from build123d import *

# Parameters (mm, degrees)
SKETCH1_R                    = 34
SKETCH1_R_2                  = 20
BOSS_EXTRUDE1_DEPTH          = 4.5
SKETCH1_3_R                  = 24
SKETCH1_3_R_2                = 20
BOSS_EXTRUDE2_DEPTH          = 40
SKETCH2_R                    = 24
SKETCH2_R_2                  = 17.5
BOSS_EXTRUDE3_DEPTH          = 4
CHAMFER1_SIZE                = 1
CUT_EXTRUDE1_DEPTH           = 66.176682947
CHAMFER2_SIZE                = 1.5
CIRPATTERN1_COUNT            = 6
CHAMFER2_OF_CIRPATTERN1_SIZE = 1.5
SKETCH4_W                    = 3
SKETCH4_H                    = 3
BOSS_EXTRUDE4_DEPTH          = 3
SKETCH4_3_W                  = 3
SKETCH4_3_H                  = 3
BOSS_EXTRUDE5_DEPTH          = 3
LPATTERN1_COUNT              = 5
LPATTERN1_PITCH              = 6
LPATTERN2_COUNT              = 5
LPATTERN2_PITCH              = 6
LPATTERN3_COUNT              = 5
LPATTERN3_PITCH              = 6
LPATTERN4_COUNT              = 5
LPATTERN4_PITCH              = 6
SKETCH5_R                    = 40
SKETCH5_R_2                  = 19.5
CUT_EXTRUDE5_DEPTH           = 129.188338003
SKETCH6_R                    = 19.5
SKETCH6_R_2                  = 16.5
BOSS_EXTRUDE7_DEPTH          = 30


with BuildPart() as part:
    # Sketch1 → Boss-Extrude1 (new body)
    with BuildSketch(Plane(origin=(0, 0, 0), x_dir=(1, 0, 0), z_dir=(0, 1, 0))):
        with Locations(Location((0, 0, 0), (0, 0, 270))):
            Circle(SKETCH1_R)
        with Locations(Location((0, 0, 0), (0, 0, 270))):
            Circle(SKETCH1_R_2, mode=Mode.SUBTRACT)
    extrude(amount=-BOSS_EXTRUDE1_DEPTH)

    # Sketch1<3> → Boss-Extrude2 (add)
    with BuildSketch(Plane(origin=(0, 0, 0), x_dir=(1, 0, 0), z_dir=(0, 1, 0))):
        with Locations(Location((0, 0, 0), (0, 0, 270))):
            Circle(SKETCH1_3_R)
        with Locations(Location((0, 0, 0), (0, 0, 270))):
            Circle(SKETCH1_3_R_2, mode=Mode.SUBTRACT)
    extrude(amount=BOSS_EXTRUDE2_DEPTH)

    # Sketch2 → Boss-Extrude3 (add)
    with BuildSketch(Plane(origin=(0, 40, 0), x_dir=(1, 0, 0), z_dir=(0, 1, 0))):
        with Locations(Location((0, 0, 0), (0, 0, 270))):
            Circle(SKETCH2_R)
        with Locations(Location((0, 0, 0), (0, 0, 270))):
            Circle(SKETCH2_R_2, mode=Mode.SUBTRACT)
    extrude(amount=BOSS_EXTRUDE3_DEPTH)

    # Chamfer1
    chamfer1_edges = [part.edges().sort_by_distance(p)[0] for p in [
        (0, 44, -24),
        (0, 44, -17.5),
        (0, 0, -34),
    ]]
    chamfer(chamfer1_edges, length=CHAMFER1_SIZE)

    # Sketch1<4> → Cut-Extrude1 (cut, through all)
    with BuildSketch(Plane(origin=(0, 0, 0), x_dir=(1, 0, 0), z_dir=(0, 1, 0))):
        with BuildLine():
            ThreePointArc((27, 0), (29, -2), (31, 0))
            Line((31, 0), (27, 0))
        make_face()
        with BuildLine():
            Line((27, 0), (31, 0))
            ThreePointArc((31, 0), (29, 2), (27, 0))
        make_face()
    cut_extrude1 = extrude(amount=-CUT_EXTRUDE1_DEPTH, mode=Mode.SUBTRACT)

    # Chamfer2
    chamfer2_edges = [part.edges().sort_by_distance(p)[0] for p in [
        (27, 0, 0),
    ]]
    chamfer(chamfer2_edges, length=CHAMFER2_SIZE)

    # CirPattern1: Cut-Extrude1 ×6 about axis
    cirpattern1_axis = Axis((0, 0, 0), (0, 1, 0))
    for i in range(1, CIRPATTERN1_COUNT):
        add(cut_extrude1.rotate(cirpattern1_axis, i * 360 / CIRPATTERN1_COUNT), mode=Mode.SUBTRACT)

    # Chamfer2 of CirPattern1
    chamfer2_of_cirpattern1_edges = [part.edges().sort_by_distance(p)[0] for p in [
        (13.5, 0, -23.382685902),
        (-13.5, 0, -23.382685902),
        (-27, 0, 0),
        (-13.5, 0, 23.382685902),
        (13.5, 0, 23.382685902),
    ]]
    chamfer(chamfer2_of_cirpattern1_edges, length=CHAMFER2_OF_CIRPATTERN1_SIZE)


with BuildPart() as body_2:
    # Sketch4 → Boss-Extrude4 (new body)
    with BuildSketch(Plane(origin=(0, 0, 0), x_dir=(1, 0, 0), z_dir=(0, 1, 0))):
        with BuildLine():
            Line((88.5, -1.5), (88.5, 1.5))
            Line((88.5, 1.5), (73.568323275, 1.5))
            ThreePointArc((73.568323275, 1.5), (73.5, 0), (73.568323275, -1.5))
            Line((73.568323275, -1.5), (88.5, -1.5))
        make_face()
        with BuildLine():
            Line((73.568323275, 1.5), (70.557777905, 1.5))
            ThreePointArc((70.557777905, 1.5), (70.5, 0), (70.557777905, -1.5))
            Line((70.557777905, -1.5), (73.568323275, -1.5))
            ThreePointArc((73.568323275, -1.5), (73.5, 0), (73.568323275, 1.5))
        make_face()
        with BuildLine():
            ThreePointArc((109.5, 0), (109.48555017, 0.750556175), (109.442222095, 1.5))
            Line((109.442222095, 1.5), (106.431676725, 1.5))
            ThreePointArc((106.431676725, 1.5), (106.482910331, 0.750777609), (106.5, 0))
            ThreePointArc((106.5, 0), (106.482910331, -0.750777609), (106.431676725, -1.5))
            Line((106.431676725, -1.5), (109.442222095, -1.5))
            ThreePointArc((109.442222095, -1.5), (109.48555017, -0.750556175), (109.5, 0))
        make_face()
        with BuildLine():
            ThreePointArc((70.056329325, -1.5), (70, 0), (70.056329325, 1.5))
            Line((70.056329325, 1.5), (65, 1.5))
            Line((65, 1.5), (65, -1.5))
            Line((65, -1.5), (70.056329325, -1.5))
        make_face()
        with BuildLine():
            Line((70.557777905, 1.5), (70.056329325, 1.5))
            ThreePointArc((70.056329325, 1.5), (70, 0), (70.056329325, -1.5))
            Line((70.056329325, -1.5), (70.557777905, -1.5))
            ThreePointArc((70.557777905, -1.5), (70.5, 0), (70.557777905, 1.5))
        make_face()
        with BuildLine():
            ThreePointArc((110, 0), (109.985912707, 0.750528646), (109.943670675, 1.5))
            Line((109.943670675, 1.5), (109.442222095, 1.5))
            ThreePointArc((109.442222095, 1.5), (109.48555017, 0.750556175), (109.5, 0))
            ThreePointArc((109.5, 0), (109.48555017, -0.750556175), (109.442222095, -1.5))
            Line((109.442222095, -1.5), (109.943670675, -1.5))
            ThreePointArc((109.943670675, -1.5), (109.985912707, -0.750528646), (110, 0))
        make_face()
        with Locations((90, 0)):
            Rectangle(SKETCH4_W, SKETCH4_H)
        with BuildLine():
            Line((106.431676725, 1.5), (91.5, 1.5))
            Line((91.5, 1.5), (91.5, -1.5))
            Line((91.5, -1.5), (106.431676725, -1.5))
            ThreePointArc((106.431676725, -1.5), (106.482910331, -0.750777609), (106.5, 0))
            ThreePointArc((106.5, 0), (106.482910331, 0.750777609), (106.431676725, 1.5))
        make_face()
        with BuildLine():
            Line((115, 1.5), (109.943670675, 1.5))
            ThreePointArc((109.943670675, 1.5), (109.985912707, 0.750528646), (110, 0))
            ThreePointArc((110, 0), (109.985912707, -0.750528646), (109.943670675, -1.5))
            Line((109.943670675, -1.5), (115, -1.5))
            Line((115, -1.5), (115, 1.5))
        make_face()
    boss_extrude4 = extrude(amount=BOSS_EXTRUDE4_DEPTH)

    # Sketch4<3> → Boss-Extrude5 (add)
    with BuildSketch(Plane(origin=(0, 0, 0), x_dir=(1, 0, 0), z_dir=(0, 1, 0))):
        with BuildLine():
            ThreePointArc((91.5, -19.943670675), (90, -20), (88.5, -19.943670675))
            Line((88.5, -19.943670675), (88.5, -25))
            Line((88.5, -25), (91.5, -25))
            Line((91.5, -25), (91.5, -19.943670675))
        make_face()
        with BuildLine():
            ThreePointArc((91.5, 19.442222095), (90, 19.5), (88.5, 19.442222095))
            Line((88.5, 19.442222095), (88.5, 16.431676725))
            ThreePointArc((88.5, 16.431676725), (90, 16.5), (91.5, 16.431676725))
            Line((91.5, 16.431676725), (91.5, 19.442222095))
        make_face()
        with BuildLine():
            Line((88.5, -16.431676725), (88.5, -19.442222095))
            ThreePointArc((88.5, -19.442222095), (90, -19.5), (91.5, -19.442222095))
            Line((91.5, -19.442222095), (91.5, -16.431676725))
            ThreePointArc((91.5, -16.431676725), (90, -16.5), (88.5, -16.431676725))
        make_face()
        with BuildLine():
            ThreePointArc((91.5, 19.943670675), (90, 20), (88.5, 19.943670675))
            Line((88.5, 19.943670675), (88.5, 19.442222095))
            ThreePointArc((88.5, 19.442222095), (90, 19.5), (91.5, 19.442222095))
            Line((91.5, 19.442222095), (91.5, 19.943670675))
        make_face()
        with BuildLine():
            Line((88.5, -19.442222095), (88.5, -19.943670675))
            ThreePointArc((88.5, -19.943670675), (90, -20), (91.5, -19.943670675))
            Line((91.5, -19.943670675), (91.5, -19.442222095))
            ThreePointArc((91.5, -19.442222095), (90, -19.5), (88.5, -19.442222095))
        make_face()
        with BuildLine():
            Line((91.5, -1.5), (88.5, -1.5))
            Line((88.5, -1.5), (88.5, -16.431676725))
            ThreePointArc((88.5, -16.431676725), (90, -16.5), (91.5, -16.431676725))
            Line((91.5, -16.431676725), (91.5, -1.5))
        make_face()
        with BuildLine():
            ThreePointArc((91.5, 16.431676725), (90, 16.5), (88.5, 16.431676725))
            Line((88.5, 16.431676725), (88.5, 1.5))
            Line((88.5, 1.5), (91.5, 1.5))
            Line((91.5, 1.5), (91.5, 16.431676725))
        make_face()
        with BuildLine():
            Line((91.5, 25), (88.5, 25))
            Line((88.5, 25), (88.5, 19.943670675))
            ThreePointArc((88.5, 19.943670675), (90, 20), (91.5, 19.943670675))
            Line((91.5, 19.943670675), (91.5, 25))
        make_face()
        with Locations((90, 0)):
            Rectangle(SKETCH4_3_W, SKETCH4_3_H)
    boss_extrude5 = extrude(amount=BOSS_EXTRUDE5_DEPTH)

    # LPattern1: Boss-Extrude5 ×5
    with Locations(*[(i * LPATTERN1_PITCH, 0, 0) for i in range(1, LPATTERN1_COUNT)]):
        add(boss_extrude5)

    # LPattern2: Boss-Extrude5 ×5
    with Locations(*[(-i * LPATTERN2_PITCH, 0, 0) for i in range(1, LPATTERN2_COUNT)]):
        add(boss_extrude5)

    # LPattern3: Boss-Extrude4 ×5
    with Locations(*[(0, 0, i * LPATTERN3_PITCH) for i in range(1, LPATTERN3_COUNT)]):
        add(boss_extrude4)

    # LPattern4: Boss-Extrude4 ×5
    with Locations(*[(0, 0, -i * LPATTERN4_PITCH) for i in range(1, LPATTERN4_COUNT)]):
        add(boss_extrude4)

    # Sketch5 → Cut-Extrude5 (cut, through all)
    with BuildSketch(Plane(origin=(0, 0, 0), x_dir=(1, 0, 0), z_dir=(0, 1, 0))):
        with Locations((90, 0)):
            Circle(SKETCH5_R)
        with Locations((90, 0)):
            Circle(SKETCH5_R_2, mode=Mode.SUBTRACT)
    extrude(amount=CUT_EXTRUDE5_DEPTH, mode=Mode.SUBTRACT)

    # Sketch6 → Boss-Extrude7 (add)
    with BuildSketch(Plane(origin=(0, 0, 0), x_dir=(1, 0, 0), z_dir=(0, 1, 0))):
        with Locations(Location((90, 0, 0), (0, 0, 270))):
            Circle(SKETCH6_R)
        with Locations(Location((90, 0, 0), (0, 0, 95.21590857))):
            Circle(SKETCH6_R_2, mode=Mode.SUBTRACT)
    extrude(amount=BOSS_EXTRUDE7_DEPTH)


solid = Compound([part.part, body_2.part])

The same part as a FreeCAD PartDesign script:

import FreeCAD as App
import Part
import Sketcher
from FreeCAD import Vector


def edges_at(feature, points):
    """Names of the edges that pass closest to the given points."""
    edges = feature.Shape.Edges
    near = lambda p: min(range(len(edges)), key=lambda i: edges[i].distToShape(Part.Vertex(*p))[0])
    return sorted({f"Edge{near(p) + 1}" for p in points})

doc = App.newDocument("Part")
body = doc.addObject("PartDesign::Body", "Body")

# Sketch on XZ plane
sketch1 = body.newObject("Sketcher::SketchObject", "Sketch")
sketch1.AttachmentSupport = (doc.getObject("XZ_Plane"), [""])
sketch1.MapMode = "FlatFace"
sketch1.addGeometry(Part.Circle(Vector(0, 0, 0), Vector(0, 0, 1), 34), False)
sketch1.addGeometry(Part.Circle(Vector(0, 0, 0), Vector(0, 0, 1), 20), False)
sketch1.addConstraint(Sketcher.Constraint("Coincident", 0, 3, -1, 1))
sketch1.addConstraint(Sketcher.Constraint("Coincident", 1, 3, -1, 1))
sketch1.addConstraint(Sketcher.Constraint("Diameter", 0, 68.0))
sketch1.addConstraint(Sketcher.Constraint("Diameter", 1, 40.0))
pad1 = body.newObject("PartDesign::Pad", "Pad")
pad1.Profile = sketch1
pad1.Length = 4.5

# Sketch on XZ plane
sketch2 = body.newObject("Sketcher::SketchObject", "Sketch001")
sketch2.AttachmentSupport = (doc.getObject("XZ_Plane"), [""])
sketch2.MapMode = "FlatFace"
sketch2.addGeometry(Part.Circle(Vector(0, 0, 0), Vector(0, 0, 1), 24), False)
sketch2.addGeometry(Part.Circle(Vector(0, 0, 0), Vector(0, 0, 1), 20), False)
sketch2.addConstraint(Sketcher.Constraint("Coincident", 0, 3, -1, 1))
sketch2.addConstraint(Sketcher.Constraint("Coincident", 1, 3, -1, 1))
sketch2.addConstraint(Sketcher.Constraint("Diameter", 0, 48.0))
sketch2.addConstraint(Sketcher.Constraint("Diameter", 1, 40.0))
pad2 = body.newObject("PartDesign::Pad", "Pad001")
pad2.Profile = sketch2
pad2.Length = 40
pad2.Reversed = True

# Sketch on XZ plane
sketch3 = body.newObject("Sketcher::SketchObject", "Sketch002")
sketch3.AttachmentSupport = (doc.getObject("XZ_Plane"), [""])
sketch3.MapMode = "FlatFace"
sketch3.AttachmentOffset = App.Placement(Vector(0, 0, -40), App.Rotation())
sketch3.addGeometry(Part.Circle(Vector(0, 0, 0), Vector(0, 0, 1), 24), False)
sketch3.addGeometry(Part.Circle(Vector(0, 0, 0), Vector(0, 0, 1), 18), False)
sketch3.addConstraint(Sketcher.Constraint("Coincident", 0, 3, -1, 1))
sketch3.addConstraint(Sketcher.Constraint("Coincident", 1, 3, -1, 1))
sketch3.addConstraint(Sketcher.Constraint("Diameter", 0, 48.0))
sketch3.addConstraint(Sketcher.Constraint("Diameter", 1, 35.0))
pad3 = body.newObject("PartDesign::Pad", "Pad002")
pad3.Profile = sketch3
pad3.Length = 4
pad3.Reversed = True
doc.recompute()

chamfer = body.newObject("PartDesign::Chamfer", "Chamfer")
chamfer.Base = (pad3, edges_at(pad3, [(0, 44, -24), (0, 44, -17.5), (0, 0, -34)]))
chamfer.Size = 1

# Sketch on XZ plane
sketch4 = body.newObject("Sketcher::SketchObject", "Sketch003")
sketch4.AttachmentSupport = (doc.getObject("XZ_Plane"), [""])
sketch4.MapMode = "FlatFace"
sketch4.addGeometry(Part.Circle(Vector(29, 0, 0), Vector(0, 0, 1), 2), False)
sketch4.addConstraint(Sketcher.Constraint("PointOnObject", 0, 3, -1))
sketch4.addConstraint(Sketcher.Constraint("Diameter", 0, 4.0))
sketch4.addConstraint(Sketcher.Constraint("DistanceX", -1, 1, 0, 3, 29.0))
pocket1 = body.newObject("PartDesign::Pocket", "Pocket")
pocket1.Profile = sketch4
pocket1.Type = "ThroughAll"
pocket1.Reversed = True
doc.recompute()

chamfer2 = body.newObject("PartDesign::Chamfer", "Chamfer001")
chamfer2.Base = (pocket1, edges_at(pocket1, [(27, 0, 0)]))
chamfer2.Size = 1.5
doc.recompute()

polarpattern = body.newObject("PartDesign::PolarPattern", "PolarPattern")
polarpattern.Originals = [pocket1]
polarpattern.Axis = (doc.getObject("Y_Axis"), [""])
polarpattern.Angle = 360
polarpattern.Occurrences = 6
body.Tip = polarpattern
doc.recompute()

chamfer3 = body.newObject("PartDesign::Chamfer", "Chamfer002")
chamfer3.Base = (polarpattern, edges_at(polarpattern, [
    (13.5, 0, -23.383),
    (-13.5, 0, -23.383),
    (-27, 0, 0),
    (-13.5, 0, 23.383),
    (13.5, 0, 23.383),
]))
chamfer3.Size = 1.5
body2 = doc.addObject("PartDesign::Body", "Body001")

# Sketch on XZ plane
sketch5 = body2.newObject("Sketcher::SketchObject", "Sketch004")
sketch5.AttachmentSupport = (doc.getObject("XZ_Plane001"), [""])
sketch5.MapMode = "FlatFace"
sketch5.addGeometry(Part.LineSegment(Vector(65, -1.5, 0), Vector(65, 1.5, 0)), False)
sketch5.addGeometry(Part.LineSegment(Vector(65, 1.5, 0), Vector(115, 1.5, 0)), False)
sketch5.addGeometry(Part.LineSegment(Vector(115, 1.5, 0), Vector(115, -1.5, 0)), False)
sketch5.addGeometry(Part.LineSegment(Vector(115, -1.5, 0), Vector(65, -1.5, 0)), False)
sketch5.addConstraint(Sketcher.Constraint("Coincident", 0, 2, 1, 1))
sketch5.addConstraint(Sketcher.Constraint("Coincident", 1, 2, 2, 1))
sketch5.addConstraint(Sketcher.Constraint("Coincident", 2, 2, 3, 1))
sketch5.addConstraint(Sketcher.Constraint("Coincident", 3, 2, 0, 1))
sketch5.addConstraint(Sketcher.Constraint("Vertical", 0))
sketch5.addConstraint(Sketcher.Constraint("Horizontal", 1))
sketch5.addConstraint(Sketcher.Constraint("Vertical", 2))
sketch5.addConstraint(Sketcher.Constraint("Horizontal", 3))
sketch5.addConstraint(Sketcher.Constraint("DistanceX", 1, 1, 1, 2, 50.0))
sketch5.addConstraint(Sketcher.Constraint("DistanceY", 0, 1, 0, 2, 3.0))
sketch5.addConstraint(Sketcher.Constraint("DistanceX", -1, 1, 0, 2, 65.0))
sketch5.addConstraint(Sketcher.Constraint("DistanceY", -1, 1, 0, 2, 1.5))
pad4 = body2.newObject("PartDesign::Pad", "Pad003")
pad4.Profile = sketch5
pad4.Length = 3
pad4.Reversed = True

# Sketch on XZ plane
sketch6 = body2.newObject("Sketcher::SketchObject", "Sketch005")
sketch6.AttachmentSupport = (doc.getObject("XZ_Plane001"), [""])
sketch6.MapMode = "FlatFace"
sketch6.addGeometry(Part.LineSegment(Vector(88.5, 25, 0), Vector(91.5, 25, 0)), False)
sketch6.addGeometry(Part.LineSegment(Vector(91.5, 25, 0), Vector(91.5, -25, 0)), False)
sketch6.addGeometry(Part.LineSegment(Vector(91.5, -25, 0), Vector(88.5, -25, 0)), False)
sketch6.addGeometry(Part.LineSegment(Vector(88.5, -25, 0), Vector(88.5, 25, 0)), False)
sketch6.addConstraint(Sketcher.Constraint("Coincident", 0, 2, 1, 1))
sketch6.addConstraint(Sketcher.Constraint("Coincident", 1, 2, 2, 1))
sketch6.addConstraint(Sketcher.Constraint("Coincident", 2, 2, 3, 1))
sketch6.addConstraint(Sketcher.Constraint("Coincident", 3, 2, 0, 1))
sketch6.addConstraint(Sketcher.Constraint("Horizontal", 0))
sketch6.addConstraint(Sketcher.Constraint("Vertical", 1))
sketch6.addConstraint(Sketcher.Constraint("Horizontal", 2))
sketch6.addConstraint(Sketcher.Constraint("Vertical", 3))
sketch6.addConstraint(Sketcher.Constraint("DistanceX", 0, 1, 0, 2, 3.0))
sketch6.addConstraint(Sketcher.Constraint("DistanceY", 1, 2, 1, 1, 50.0))
sketch6.addConstraint(Sketcher.Constraint("DistanceY", -1, 1, 0, 2, 25.0))
sketch6.addConstraint(Sketcher.Constraint("DistanceX", -1, 1, 0, 2, 91.5))
pad5 = body2.newObject("PartDesign::Pad", "Pad004")
pad5.Profile = sketch6
pad5.Length = 3
pad5.Reversed = True
doc.recompute()

linearpattern = body2.newObject("PartDesign::LinearPattern", "LinearPattern")
linearpattern.Originals = [pad5]
linearpattern.Direction = (doc.getObject("X_Axis001"), [""])
linearpattern.Mode = "offset"
linearpattern.Offset = 6
linearpattern.Occurrences = 5
body2.Tip = linearpattern
doc.recompute()

linearpattern2 = body2.newObject("PartDesign::LinearPattern", "LinearPattern001")
linearpattern2.Originals = [pad5]
linearpattern2.Direction = (doc.getObject("X_Axis001"), [""])
linearpattern2.Mode = "offset"
linearpattern2.Offset = 6
linearpattern2.Occurrences = 5
linearpattern2.Reversed = True
body2.Tip = linearpattern2
doc.recompute()

linearpattern3 = body2.newObject("PartDesign::LinearPattern", "LinearPattern002")
linearpattern3.Originals = [pad4]
linearpattern3.Direction = (doc.getObject("Z_Axis001"), [""])
linearpattern3.Mode = "offset"
linearpattern3.Offset = 6
linearpattern3.Occurrences = 5
body2.Tip = linearpattern3
doc.recompute()

linearpattern4 = body2.newObject("PartDesign::LinearPattern", "LinearPattern003")
linearpattern4.Originals = [pad4]
linearpattern4.Direction = (doc.getObject("Z_Axis001"), [""])
linearpattern4.Mode = "offset"
linearpattern4.Offset = 6
linearpattern4.Occurrences = 5
linearpattern4.Reversed = True
body2.Tip = linearpattern4

# Sketch on XZ plane
sketch7 = body2.newObject("Sketcher::SketchObject", "Sketch006")
sketch7.AttachmentSupport = (doc.getObject("XZ_Plane001"), [""])
sketch7.MapMode = "FlatFace"
sketch7.addGeometry(Part.Circle(Vector(90, 0, 0), Vector(0, 0, 1), 40), False)
sketch7.addGeometry(Part.Circle(Vector(90, 0, 0), Vector(0, 0, 1), 20), False)
sketch7.addConstraint(Sketcher.Constraint("Coincident", 1, 3, 0, 3))
sketch7.addConstraint(Sketcher.Constraint("PointOnObject", 0, 3, -1))
sketch7.addConstraint(Sketcher.Constraint("Diameter", 0, 80.0))
sketch7.addConstraint(Sketcher.Constraint("Diameter", 1, 39.0))
sketch7.addConstraint(Sketcher.Constraint("DistanceX", -1, 1, 0, 3, 90.0))
pocket2 = body2.newObject("PartDesign::Pocket", "Pocket001")
pocket2.Profile = sketch7
pocket2.Type = "ThroughAll"

# Sketch on XZ plane
sketch8 = body2.newObject("Sketcher::SketchObject", "Sketch007")
sketch8.AttachmentSupport = (doc.getObject("XZ_Plane001"), [""])
sketch8.MapMode = "FlatFace"
sketch8.addGeometry(Part.Circle(Vector(90, 0, 0), Vector(0, 0, 1), 20), False)
sketch8.addGeometry(Part.Circle(Vector(90, 0, 0), Vector(0, 0, 1), 16), False)
sketch8.addConstraint(Sketcher.Constraint("Coincident", 1, 3, 0, 3))
sketch8.addConstraint(Sketcher.Constraint("PointOnObject", 0, 3, -1))
sketch8.addConstraint(Sketcher.Constraint("Diameter", 0, 39.0))
sketch8.addConstraint(Sketcher.Constraint("Diameter", 1, 33.0))
sketch8.addConstraint(Sketcher.Constraint("DistanceX", -1, 1, 0, 3, 90.0))
pad6 = body2.newObject("PartDesign::Pad", "Pad005")
pad6.Profile = sketch8
pad6.Length = 30
pad6.Reversed = True

doc.recompute()
